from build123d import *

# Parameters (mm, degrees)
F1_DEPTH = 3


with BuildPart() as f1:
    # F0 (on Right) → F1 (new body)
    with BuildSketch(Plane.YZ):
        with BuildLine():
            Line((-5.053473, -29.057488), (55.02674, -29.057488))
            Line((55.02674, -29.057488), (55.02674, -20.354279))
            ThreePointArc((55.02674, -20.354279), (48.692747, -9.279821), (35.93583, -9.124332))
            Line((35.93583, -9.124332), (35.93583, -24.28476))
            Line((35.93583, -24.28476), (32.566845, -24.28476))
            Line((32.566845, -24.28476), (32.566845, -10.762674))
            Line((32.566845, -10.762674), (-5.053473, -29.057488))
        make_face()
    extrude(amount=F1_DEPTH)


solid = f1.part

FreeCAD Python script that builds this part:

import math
import FreeCAD as App
import Part
import Sketcher

V = App.Vector

doc = App.newDocument("Part")
body = doc.addObject("PartDesign::Body", "Body")

# Sketch on YZ plane
sketch1 = doc.addObject("Sketcher::SketchObject", "Sketch")
body.addObject(sketch1)
sketch1.AttachmentSupport = (doc.YZ_Plane, [""])
sketch1.MapMode = "FlatFace"
sketch1.addGeometry(Part.LineSegment(V(-5.1, -29.1, 0), V(55, -29.1, 0)), False)
sketch1.addGeometry(Part.LineSegment(V(55, -29.1, 0), V(55, -20.4, 0)), False)
sketch1.addGeometry(Part.ArcOfCircle(Part.Circle(V(42.2, -20.4, 0), V(0, 0, 1), 12.8), math.radians(0), math.radians(119)), False)
sketch1.addGeometry(Part.LineSegment(V(35.9, -9.1, 0), V(35.9, -24.3, 0)), False)
sketch1.addGeometry(Part.LineSegment(V(35.9, -24.3, 0), V(32.6, -24.3, 0)), False)
sketch1.addGeometry(Part.LineSegment(V(32.6, -24.3, 0), V(32.6, -10.8, 0)), False)
sketch1.addGeometry(Part.LineSegment(V(32.6, -10.8, 0), V(-5.1, -29.1, 0)), False)
sketch1.addConstraint(Sketcher.Constraint("Coincident", 0, 2, 1, 1))
sketch1.addConstraint(Sketcher.Constraint("Tangent", 1, 2, 2, 1))
sketch1.addConstraint(Sketcher.Constraint("Coincident", 2, 2, 3, 1))
sketch1.addConstraint(Sketcher.Constraint("Coincident", 3, 2, 4, 1))
sketch1.addConstraint(Sketcher.Constraint("Coincident", 4, 2, 5, 1))
sketch1.addConstraint(Sketcher.Constraint("Coincident", 5, 2, 6, 1))
sketch1.addConstraint(Sketcher.Constraint("Coincident", 6, 2, 0, 1))
sketch1.addConstraint(Sketcher.Constraint("Horizontal", 0))
sketch1.addConstraint(Sketcher.Constraint("Vertical", 1))
sketch1.addConstraint(Sketcher.Constraint("Vertical", 3))
sketch1.addConstraint(Sketcher.Constraint("Horizontal", 4))
sketch1.addConstraint(Sketcher.Constraint("Vertical", 5))
sketch1.addConstraint(Sketcher.Constraint("Radius", 2, 12.848381))
sketch1.addConstraint(Sketcher.Constraint("DistanceY", 1, 1, 1, 2, 8.703209))
sketch1.addConstraint(Sketcher.Constraint("DistanceX", 0, 1, 0, 2, 60.080213))
sketch1.addConstraint(Sketcher.Constraint("DistanceX", 4, 2, 4, 1, 3.368985))
sketch1.addConstraint(Sketcher.Constraint("DistanceY", 3, 2, 3, 1, 15.160428))
sketch1.addConstraint(Sketcher.Constraint("DistanceY", 5, 1, 5, 2, 13.522086))
sketch1.addConstraint(Sketcher.Constraint("DistanceX", -1, 1, 2, 3, 42.178359))
sketch1.addConstraint(Sketcher.Constraint("DistanceY", 2, 3, -1, 1, 20.35428))
sketch1.addConstraint(Sketcher.Constraint("DistanceX", -1, 1, 2, 2, 35.93583))
pad1 = doc.addObject("PartDesign::Pad", "Pad")
body.addObject(pad1)
pad1.Profile = sketch1
pad1.Length = 3

doc.recompute()
